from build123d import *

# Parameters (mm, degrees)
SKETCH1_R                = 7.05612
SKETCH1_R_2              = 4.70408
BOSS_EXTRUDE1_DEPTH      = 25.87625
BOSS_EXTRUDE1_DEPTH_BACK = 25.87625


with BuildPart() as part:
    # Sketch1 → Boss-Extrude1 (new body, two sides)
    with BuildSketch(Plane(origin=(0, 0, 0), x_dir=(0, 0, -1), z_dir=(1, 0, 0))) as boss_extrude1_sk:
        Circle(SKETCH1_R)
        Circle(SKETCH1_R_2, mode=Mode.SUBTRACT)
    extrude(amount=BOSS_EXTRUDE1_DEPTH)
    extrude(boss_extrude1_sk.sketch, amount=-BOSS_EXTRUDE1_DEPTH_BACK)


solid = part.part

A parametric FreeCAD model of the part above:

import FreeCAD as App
import Part
import Sketcher
Q = App.Units.Quantity

doc = App.newDocument("Part")
params = doc.addObject("Spreadsheet::Sheet", "Params")
for row, (alias, value) in enumerate([
    ("pad1_length", "25.87625 mm"),
    ("pad1_length2", "25.87625 mm"),
], start=1):
    params.set(f"A{row}", alias)
    params.set(f"B{row}", "=" + value)
    params.setAlias(f"B{row}", alias)

body = doc.addObject("PartDesign::Body", "Body")

# Sketch on YZ plane
sketch1 = body.newObject("Sketcher::SketchObject", "Sketch")
sketch1.AttachmentSupport = (doc.getObject("YZ_Plane"), [""])
sketch1.MapMode = "FlatFace"
sketch1.addGeometry([
    Part.Circle(App.Vector(0, 0, 0), App.Vector(0, 0, 1), 7.05612),
    Part.Circle(App.Vector(0, 0, 0), App.Vector(0, 0, 1), 4.70408),
], False)
sketch1.addConstraint([
    Sketcher.Constraint("Coincident", 0, 3, -1, 1),
    Sketcher.Constraint("Coincident", 1, 3, -1, 1),
    Sketcher.Constraint("Diameter", 0, Q("14.11224 mm")),
    Sketcher.Constraint("Diameter", 1, Q("9.40816 mm")),
])
pad1 = body.newObject("PartDesign::Pad", "Pad")
pad1.Profile = sketch1
pad1.Type = "TwoLengths"
pad1.setExpression("Length", "Params.pad1_length")
pad1.setExpression("Length2", "Params.pad1_length2")

doc.recompute()
